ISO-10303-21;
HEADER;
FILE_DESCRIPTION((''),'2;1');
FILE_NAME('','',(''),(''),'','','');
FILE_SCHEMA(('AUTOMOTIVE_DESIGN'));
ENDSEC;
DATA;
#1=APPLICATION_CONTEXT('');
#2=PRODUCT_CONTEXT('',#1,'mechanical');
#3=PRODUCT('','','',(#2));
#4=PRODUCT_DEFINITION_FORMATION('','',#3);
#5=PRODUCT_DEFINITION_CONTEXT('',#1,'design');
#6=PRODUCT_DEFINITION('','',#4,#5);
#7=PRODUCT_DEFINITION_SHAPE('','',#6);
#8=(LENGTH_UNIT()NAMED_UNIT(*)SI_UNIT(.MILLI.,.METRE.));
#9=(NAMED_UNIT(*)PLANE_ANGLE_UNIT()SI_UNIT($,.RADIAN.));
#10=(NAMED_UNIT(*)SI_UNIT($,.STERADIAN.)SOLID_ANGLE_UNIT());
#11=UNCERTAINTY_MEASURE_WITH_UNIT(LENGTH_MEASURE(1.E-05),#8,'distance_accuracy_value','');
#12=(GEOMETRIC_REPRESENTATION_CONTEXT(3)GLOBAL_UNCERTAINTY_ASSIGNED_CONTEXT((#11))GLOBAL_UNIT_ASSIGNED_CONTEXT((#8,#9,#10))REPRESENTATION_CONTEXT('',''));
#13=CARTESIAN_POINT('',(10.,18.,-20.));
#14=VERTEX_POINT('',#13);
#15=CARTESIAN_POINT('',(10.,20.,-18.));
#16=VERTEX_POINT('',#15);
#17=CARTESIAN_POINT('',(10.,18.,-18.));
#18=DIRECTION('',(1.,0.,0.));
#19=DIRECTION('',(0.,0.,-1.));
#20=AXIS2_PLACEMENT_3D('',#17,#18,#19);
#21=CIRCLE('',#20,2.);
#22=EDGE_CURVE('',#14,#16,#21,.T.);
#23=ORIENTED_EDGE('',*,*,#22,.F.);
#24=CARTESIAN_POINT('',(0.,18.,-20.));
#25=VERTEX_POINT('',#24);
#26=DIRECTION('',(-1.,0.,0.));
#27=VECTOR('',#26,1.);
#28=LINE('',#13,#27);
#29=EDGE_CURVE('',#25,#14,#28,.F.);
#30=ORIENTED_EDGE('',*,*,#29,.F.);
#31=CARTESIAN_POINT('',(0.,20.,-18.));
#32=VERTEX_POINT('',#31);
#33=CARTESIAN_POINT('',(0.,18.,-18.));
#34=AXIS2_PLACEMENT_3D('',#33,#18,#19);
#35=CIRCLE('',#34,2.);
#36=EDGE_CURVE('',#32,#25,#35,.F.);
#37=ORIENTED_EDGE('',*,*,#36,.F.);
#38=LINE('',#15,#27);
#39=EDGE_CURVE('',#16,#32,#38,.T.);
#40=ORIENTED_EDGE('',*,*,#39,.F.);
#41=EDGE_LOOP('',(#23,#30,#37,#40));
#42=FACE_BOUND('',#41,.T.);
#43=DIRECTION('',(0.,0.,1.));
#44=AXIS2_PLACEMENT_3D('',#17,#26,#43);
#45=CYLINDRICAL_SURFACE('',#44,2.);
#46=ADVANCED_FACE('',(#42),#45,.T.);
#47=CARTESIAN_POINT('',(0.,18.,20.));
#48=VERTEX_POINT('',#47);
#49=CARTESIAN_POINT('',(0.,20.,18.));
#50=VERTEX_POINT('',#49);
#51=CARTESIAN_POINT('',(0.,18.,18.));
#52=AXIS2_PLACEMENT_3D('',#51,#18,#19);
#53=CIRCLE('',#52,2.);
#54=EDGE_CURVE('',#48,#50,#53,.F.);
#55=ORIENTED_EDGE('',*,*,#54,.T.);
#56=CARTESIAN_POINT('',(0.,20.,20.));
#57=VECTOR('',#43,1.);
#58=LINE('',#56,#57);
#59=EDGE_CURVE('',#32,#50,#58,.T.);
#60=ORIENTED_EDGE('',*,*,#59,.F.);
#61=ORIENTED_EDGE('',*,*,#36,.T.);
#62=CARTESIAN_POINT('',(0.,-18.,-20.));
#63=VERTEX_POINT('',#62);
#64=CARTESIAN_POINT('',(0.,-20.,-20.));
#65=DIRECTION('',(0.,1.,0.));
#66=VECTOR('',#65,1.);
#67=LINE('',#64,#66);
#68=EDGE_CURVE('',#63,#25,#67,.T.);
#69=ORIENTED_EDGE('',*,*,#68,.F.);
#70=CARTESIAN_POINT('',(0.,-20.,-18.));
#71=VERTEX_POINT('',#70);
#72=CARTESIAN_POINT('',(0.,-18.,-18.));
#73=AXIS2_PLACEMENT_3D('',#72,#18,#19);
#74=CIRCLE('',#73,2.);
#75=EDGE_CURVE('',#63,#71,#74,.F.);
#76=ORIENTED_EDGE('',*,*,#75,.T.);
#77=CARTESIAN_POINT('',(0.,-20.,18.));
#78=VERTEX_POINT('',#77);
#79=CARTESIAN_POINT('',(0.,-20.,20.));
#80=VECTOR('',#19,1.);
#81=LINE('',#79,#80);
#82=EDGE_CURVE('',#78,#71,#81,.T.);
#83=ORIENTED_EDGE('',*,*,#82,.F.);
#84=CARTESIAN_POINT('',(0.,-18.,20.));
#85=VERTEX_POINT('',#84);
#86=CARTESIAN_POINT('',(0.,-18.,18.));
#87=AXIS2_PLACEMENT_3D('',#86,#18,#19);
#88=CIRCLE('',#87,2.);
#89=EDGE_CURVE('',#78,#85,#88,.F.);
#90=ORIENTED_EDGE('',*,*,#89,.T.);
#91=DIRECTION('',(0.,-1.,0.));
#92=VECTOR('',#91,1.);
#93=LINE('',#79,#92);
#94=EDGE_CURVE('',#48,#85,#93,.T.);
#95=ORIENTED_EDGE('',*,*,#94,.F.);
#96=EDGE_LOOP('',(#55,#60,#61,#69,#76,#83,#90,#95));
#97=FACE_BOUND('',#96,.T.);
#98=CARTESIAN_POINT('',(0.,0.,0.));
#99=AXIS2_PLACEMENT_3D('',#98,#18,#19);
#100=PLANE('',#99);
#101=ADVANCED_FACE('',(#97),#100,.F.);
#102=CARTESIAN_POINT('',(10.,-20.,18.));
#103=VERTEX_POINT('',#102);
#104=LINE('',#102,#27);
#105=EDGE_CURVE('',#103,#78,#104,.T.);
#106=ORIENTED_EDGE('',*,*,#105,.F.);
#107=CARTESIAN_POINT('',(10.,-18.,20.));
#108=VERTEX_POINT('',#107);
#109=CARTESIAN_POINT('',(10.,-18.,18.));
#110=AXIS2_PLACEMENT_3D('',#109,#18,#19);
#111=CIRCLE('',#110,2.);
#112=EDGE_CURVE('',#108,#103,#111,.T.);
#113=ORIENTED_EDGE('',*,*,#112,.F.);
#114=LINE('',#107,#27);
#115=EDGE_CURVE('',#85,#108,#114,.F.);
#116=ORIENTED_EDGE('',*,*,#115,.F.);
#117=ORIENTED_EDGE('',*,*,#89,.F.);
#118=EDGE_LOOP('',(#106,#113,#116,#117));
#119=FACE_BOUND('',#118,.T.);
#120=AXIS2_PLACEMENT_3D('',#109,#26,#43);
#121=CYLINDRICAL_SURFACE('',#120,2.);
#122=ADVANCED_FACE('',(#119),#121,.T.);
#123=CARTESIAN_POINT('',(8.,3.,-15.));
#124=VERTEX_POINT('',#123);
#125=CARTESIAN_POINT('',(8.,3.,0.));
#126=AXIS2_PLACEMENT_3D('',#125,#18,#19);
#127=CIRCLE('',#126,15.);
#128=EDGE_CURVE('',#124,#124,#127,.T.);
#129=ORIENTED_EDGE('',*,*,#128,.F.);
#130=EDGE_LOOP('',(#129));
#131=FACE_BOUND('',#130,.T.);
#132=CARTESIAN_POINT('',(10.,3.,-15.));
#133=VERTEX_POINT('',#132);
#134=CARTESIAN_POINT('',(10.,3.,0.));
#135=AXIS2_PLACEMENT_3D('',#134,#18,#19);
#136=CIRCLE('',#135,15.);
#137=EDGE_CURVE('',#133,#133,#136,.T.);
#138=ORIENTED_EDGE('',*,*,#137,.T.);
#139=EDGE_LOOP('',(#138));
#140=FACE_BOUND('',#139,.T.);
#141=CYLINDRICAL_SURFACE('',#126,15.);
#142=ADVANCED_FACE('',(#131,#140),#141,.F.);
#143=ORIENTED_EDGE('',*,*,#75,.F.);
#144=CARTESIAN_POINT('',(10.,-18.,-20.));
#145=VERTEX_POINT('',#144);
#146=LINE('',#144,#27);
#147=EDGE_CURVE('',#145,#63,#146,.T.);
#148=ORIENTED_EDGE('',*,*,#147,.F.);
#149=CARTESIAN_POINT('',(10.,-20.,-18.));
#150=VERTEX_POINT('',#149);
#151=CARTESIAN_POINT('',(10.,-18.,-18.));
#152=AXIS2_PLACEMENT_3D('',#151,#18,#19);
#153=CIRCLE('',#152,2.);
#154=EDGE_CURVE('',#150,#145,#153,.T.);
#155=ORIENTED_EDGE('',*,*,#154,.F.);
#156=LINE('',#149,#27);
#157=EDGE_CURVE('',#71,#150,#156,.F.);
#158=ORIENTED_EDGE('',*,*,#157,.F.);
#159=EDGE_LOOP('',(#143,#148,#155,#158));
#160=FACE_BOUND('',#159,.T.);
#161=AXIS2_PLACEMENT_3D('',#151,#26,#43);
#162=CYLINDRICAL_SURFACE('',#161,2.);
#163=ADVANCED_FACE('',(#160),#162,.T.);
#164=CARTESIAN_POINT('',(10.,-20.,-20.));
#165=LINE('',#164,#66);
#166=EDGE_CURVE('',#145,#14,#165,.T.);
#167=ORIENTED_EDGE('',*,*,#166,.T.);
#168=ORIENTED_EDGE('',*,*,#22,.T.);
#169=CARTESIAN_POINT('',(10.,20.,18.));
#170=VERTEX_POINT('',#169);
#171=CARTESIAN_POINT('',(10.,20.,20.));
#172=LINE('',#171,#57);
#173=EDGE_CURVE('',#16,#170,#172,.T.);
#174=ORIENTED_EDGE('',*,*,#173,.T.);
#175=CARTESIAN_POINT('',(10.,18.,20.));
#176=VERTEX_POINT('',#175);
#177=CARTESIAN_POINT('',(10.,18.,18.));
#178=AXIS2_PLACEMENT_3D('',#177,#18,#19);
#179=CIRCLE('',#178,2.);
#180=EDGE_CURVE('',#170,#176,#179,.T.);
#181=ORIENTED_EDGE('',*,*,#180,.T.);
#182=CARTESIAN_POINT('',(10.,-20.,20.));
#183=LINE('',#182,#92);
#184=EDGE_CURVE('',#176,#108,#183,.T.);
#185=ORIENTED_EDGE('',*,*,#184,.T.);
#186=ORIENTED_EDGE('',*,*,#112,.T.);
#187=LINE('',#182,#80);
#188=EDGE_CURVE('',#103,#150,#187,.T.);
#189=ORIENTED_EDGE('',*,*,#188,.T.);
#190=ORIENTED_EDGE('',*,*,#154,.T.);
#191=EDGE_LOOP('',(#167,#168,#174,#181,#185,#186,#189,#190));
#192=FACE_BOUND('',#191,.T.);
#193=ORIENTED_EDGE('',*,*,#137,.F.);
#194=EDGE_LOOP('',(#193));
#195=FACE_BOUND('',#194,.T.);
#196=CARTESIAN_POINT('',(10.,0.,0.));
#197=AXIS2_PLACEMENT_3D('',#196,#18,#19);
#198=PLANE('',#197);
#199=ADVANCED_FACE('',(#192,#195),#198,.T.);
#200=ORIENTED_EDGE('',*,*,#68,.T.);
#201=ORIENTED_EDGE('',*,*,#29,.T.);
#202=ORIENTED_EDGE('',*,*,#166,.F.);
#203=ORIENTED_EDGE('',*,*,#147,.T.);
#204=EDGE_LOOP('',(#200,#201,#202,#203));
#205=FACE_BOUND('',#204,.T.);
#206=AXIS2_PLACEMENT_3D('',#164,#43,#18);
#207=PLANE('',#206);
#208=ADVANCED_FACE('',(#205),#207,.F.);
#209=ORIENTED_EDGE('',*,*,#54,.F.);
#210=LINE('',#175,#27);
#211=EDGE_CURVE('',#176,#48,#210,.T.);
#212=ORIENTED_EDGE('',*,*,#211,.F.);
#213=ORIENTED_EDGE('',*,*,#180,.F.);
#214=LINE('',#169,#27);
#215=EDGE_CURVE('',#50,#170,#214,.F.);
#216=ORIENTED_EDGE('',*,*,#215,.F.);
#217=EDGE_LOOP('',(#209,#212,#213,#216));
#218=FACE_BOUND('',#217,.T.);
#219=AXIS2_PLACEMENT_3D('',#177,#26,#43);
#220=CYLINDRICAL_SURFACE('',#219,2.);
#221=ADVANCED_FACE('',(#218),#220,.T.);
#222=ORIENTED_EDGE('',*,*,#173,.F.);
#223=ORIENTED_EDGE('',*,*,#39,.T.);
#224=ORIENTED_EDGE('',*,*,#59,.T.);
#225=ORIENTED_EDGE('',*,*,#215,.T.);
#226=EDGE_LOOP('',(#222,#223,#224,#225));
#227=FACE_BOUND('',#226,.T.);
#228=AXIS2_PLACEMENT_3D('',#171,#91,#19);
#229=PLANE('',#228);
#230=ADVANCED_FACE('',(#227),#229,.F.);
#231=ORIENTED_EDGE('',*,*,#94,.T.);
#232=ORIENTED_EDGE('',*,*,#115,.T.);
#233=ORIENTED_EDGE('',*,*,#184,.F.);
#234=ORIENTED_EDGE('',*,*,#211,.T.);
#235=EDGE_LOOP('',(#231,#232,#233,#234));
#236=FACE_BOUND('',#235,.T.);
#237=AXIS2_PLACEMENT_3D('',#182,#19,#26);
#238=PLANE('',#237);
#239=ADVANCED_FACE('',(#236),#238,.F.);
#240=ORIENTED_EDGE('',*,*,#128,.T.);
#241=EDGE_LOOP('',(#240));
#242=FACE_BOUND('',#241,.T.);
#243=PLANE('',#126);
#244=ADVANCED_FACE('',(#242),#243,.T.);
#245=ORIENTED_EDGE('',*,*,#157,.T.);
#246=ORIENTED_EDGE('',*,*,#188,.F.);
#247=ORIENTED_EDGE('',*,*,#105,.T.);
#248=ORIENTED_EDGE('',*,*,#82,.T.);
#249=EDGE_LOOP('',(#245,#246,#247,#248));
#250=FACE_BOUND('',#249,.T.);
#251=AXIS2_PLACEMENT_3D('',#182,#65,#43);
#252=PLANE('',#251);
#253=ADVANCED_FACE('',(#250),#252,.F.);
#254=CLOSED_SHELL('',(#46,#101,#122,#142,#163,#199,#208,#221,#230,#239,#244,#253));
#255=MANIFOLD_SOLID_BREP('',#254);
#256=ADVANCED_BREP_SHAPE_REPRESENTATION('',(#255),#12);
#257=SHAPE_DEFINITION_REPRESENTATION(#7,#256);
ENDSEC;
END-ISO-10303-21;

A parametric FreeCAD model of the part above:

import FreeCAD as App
import Part
import Sketcher
from FreeCAD import Vector


def edges_at(feature, points):
    """Names of the edges that pass closest to the given points."""
    edges = feature.Shape.Edges
    near = lambda p: min(range(len(edges)), key=lambda i: edges[i].distToShape(Part.Vertex(*p))[0])
    return sorted({f"Edge{near(p) + 1}" for p in points})


def add_polygon(sketch, points):
    """Adds a closed chain of lines whose ends are joined by coincident constraints."""
    first, n = sketch.GeometryCount, len(points)
    for a, b in zip(points, points[1:] + points[:1]):
        sketch.addGeometry(Part.LineSegment(App.Vector(*a, 0), App.Vector(*b, 0)), False)
    for i in range(n):
        sketch.addConstraint(Sketcher.Constraint("Coincident", first + i, 2, first + (i + 1) % n, 1))

doc = App.newDocument("Part")
params = doc.addObject("Spreadsheet::Sheet", "Params")
for row, (alias, value) in enumerate([
    ("sketch1_width", "40 mm"),
    ("pad1_length", "10 mm"),
    ("sketch2_diameter", "30 mm"),
    ("pocket1_length", "2 mm"),
    ("fillet_radius", "2 mm"),
], start=1):
    params.set(f"A{row}", alias)
    params.set(f"B{row}", "=" + value)
    params.setAlias(f"B{row}", alias)

body = doc.addObject("PartDesign::Body", "Body")

# Sketch on YZ plane
sketch1 = body.newObject("Sketcher::SketchObject", "Sketch")
sketch1.AttachmentSupport = (doc.getObject("YZ_Plane"), [""])
sketch1.MapMode = "FlatFace"
add_polygon(sketch1, [(-20, 20), (-20, -20), (20, -20), (20, 20)])  # lines 0-3
sketch1.addConstraint([
    Sketcher.Constraint("Vertical", 0),
    Sketcher.Constraint("Horizontal", 1),
    Sketcher.Constraint("Vertical", 2),
    Sketcher.Constraint("Horizontal", 3),
    Sketcher.Constraint("Symmetric", 0, 2, 2, 2, -1, 1),
    Sketcher.Constraint("Equal", 3, 0),
    Sketcher.Constraint("DistanceX", 1, 1, 1, 2, 40.0),
])
sketch1.setExpression("Constraints[10]", "Params.sketch1_width")
pad1 = body.newObject("PartDesign::Pad", "Pad")
pad1.Profile = sketch1
pad1.setExpression("Length", "Params.pad1_length")

# Sketch on YZ plane
sketch2 = body.newObject("Sketcher::SketchObject", "Sketch001")
sketch2.AttachmentSupport = (doc.getObject("YZ_Plane"), [""])
sketch2.MapMode = "FlatFace"
sketch2.AttachmentOffset = App.Placement(Vector(0, 0, 10), App.Rotation())
sketch2.addGeometry(Part.Circle(Vector(3, 0, 0), Vector(0, 0, 1), 15), False)
sketch2.addConstraint([
    Sketcher.Constraint("PointOnObject", 0, 3, -1),
    Sketcher.Constraint("Diameter", 0, 30.0),
    Sketcher.Constraint("DistanceX", -1, 1, 0, 3, 3.0),
])
sketch2.setExpression("Constraints[1]", "Params.sketch2_diameter")
pocket1 = body.newObject("PartDesign::Pocket", "Pocket")
pocket1.Profile = sketch2
pocket1.setExpression("Length", "Params.pocket1_length")
doc.recompute()

fillet = body.newObject("PartDesign::Fillet", "Fillet")
fillet.Base = (pocket1, edges_at(pocket1, [
    (5, 20, -20),
    (5, -20, -20),
    (5, -20, 20),
    (5, 20, 20),
]))
fillet.setExpression("Radius", "Params.fillet_radius")

doc.recompute()
